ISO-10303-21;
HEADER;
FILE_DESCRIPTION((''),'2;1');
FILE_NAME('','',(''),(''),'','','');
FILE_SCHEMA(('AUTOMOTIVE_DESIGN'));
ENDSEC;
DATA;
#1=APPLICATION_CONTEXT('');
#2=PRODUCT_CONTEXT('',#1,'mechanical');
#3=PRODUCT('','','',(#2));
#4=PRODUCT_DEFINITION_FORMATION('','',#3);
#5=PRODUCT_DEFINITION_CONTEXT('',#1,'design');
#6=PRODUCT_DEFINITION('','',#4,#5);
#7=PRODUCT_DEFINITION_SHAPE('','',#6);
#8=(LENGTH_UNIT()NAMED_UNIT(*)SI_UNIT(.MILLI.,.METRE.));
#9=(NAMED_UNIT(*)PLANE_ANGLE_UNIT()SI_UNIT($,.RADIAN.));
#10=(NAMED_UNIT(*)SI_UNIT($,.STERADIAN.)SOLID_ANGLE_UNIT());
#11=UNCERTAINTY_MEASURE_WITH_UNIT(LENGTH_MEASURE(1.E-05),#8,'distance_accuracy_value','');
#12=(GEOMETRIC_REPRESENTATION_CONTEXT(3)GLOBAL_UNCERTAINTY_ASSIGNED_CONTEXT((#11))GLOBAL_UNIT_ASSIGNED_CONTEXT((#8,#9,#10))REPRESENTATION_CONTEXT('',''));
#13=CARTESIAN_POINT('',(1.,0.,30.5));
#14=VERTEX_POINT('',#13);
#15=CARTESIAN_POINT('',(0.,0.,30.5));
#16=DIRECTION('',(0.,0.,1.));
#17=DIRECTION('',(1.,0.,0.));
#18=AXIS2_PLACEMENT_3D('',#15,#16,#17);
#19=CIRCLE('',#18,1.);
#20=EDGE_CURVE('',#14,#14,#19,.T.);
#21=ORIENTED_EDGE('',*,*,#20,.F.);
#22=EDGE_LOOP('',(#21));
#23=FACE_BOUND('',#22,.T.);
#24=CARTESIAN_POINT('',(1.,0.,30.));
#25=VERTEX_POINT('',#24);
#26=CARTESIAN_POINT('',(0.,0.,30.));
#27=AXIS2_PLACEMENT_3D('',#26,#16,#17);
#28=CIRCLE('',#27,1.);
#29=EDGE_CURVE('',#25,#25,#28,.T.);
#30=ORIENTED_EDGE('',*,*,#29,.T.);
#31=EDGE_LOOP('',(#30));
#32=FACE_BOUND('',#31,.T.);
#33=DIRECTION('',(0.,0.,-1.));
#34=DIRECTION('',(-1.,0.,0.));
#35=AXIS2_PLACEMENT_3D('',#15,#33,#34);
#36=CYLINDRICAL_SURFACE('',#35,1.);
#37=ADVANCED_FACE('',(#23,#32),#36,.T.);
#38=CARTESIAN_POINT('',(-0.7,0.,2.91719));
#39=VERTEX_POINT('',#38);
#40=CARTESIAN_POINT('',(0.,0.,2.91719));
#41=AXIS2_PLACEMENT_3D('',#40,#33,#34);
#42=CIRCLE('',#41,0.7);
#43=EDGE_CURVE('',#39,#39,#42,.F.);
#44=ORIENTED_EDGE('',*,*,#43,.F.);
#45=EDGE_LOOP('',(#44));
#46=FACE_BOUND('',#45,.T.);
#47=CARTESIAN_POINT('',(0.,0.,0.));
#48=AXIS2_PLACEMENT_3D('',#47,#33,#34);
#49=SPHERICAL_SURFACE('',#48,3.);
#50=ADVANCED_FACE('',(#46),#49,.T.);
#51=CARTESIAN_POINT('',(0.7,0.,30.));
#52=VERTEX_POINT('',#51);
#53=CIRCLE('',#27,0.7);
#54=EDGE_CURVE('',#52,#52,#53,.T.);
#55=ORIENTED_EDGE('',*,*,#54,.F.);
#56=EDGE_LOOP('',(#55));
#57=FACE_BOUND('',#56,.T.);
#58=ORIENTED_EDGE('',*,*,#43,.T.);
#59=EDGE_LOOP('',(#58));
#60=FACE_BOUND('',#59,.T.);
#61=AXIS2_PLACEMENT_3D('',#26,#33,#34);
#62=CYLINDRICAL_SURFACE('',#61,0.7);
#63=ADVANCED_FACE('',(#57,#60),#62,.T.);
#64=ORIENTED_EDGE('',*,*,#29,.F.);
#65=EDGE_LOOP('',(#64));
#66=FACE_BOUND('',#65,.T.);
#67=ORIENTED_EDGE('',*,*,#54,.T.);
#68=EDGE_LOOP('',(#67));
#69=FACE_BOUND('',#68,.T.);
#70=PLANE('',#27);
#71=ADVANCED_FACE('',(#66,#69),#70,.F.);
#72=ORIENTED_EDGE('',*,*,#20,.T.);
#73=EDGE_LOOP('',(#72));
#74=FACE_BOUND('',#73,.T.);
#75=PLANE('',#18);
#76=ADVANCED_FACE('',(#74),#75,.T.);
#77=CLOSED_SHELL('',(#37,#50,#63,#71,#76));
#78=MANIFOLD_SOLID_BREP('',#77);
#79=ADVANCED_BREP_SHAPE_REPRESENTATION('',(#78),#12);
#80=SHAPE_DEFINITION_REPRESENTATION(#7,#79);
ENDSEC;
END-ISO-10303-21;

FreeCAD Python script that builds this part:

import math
import FreeCAD as App
import Part
import Sketcher

doc = App.newDocument("Part")
body = doc.addObject("PartDesign::Body", "Body")

# Sketch on XY plane
sketch1 = doc.addObject("Sketcher::SketchObject", "Sketch")
body.addObject(sketch1)
sketch1.AttachmentSupport = (doc.XY_Plane, [""])
sketch1.MapMode = "FlatFace"
sketch1.addGeometry(Part.LineSegment(App.Vector(0, 3, 0), App.Vector(0, -3, 0)), False)
sketch1.addGeometry(Part.ArcOfCircle(Part.Circle(App.Vector(0, 0, 0), App.Vector(0, 0, 1), 3), math.radians(-90), math.radians(90)), False)
sketch1.addConstraint(Sketcher.Constraint("Coincident", 0, 1, 1, 2))
sketch1.addConstraint(Sketcher.Constraint("Coincident", 1, 1, 0, 2))
sketch1.addConstraint(Sketcher.Constraint("Vertical", 0))
sketch1.addConstraint(Sketcher.Constraint("Coincident", 1, 3, -1, 1))
sketch1.addConstraint(Sketcher.Constraint("PointOnObject", 0, 1, -2))
sketch1.addConstraint(Sketcher.Constraint("Radius", 1, 3.0))
revolution = doc.addObject("PartDesign::Revolution", "Revolution")
body.addObject(revolution)
revolution.Profile = sketch1
revolution.ReferenceAxis = (sketch1, ["V_Axis"])
revolution.Angle = 360

# Sketch on XY plane
sketch2 = doc.addObject("Sketcher::SketchObject", "Sketch001")
body.addObject(sketch2)
sketch2.AttachmentSupport = (doc.XY_Plane, [""])
sketch2.MapMode = "FlatFace"
sketch2.addGeometry(Part.Circle(App.Vector(0, 0, 0), App.Vector(0, 0, 1), 0.7), False)
sketch2.addConstraint(Sketcher.Constraint("Coincident", 0, 3, -1, 1))
sketch2.addConstraint(Sketcher.Constraint("Diameter", 0, 1.4))
pad1 = doc.addObject("PartDesign::Pad", "Pad")
body.addObject(pad1)
pad1.Profile = sketch2
pad1.Length = 30

# Sketch on XY plane
sketch3 = doc.addObject("Sketcher::SketchObject", "Sketch002")
body.addObject(sketch3)
sketch3.AttachmentSupport = (doc.XY_Plane, [""])
sketch3.MapMode = "FlatFace"
sketch3.AttachmentOffset = App.Placement(App.Vector(0, 0, 30), App.Rotation())
sketch3.addGeometry(Part.Circle(App.Vector(0, 0, 0), App.Vector(0, 0, 1), 1), False)
sketch3.addConstraint(Sketcher.Constraint("Coincident", 0, 3, -1, 1))
sketch3.addConstraint(Sketcher.Constraint("Diameter", 0, 2.0))
pad2 = doc.addObject("PartDesign::Pad", "Pad001")
body.addObject(pad2)
pad2.Profile = sketch3
pad2.Length = 0.5

doc.recompute()
